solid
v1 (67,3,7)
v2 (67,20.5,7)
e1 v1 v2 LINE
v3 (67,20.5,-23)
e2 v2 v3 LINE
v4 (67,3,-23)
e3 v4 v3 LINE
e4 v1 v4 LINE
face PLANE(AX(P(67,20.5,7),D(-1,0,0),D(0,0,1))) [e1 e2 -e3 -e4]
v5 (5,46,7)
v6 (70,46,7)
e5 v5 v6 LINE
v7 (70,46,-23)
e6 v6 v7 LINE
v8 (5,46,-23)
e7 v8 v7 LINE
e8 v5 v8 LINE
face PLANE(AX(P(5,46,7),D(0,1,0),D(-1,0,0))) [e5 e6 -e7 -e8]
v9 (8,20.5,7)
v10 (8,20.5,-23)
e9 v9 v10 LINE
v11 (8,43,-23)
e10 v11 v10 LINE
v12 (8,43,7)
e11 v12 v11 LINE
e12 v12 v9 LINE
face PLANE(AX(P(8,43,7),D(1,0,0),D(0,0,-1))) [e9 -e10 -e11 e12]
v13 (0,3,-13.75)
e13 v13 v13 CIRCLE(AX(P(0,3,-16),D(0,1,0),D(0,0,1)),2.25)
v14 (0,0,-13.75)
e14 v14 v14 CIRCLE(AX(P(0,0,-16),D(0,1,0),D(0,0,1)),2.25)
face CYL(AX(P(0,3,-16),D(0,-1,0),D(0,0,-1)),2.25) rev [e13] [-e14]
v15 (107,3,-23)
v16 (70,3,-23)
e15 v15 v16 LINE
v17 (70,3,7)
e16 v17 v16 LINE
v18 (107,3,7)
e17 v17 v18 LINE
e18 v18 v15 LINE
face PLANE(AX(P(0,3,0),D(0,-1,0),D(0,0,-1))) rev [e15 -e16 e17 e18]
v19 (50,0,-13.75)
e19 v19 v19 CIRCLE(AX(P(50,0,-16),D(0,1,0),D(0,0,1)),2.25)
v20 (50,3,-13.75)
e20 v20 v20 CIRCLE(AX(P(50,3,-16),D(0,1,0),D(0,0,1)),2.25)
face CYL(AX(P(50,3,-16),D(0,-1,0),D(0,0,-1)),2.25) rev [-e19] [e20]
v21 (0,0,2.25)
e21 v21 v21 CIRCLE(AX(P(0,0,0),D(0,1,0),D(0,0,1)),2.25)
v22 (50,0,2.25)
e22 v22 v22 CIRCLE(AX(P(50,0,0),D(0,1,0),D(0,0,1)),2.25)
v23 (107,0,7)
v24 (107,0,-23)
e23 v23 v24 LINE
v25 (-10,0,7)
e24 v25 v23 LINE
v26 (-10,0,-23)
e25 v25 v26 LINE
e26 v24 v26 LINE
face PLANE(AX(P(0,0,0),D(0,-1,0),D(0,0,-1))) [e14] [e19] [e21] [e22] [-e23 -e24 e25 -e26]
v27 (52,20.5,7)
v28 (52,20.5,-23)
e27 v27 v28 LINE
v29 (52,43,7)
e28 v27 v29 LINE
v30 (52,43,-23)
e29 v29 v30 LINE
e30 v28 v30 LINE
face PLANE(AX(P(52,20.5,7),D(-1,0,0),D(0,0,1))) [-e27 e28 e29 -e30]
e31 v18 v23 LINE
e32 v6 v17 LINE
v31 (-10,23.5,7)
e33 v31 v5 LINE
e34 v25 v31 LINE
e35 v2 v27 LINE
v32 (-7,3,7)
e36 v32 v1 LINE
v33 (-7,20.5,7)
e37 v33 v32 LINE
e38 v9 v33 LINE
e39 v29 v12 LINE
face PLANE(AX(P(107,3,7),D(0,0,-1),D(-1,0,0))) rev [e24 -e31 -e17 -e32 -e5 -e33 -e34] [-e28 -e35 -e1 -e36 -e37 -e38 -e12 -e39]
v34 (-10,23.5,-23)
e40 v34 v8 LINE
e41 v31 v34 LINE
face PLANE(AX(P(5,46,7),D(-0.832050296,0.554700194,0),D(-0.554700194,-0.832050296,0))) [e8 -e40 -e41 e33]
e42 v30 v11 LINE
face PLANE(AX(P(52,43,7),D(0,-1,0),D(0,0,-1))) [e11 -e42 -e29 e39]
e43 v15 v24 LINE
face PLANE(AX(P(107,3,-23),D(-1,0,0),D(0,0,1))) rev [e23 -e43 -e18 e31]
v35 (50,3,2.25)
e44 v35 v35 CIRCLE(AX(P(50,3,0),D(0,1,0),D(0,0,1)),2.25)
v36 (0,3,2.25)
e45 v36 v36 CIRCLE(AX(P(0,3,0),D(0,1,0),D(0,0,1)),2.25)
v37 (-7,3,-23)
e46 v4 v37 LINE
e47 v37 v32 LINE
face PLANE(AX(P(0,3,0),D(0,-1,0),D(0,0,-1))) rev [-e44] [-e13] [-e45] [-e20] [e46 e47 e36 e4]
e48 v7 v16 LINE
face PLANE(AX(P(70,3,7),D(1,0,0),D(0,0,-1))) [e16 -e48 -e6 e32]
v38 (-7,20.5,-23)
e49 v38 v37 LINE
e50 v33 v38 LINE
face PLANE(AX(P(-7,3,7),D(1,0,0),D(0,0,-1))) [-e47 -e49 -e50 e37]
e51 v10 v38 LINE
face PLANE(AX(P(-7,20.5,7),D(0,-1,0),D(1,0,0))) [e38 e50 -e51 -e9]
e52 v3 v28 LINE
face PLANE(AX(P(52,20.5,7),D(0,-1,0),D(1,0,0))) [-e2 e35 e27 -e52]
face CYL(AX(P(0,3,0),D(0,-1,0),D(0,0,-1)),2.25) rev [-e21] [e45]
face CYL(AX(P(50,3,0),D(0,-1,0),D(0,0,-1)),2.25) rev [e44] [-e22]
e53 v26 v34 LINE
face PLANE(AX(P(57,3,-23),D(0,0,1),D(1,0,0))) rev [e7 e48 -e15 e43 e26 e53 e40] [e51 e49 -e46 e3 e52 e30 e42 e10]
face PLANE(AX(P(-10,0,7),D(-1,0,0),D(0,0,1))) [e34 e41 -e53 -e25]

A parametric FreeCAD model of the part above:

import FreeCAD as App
import Part
import Sketcher

V = App.Vector
Q = App.Units.Quantity


def add_polygon(sketch, points):
    """Adds a closed chain of lines whose ends are joined by coincident constraints."""
    first, n = sketch.GeometryCount, len(points)
    for a, b in zip(points, points[1:] + points[:1]):
        sketch.addGeometry(Part.LineSegment(App.Vector(*a, 0), App.Vector(*b, 0)), False)
    for i in range(n):
        sketch.addConstraint(Sketcher.Constraint("Coincident", first + i, 2, first + (i + 1) % n, 1))

doc = App.newDocument("Part")
params = doc.addObject("Spreadsheet::Sheet", "Params")
for row, (alias, value) in enumerate([
    ("sketch1_diameter", "4.5 mm"),
    ("sketch1_width", "114 mm"),
    ("sketch1_height", "30 mm"),
    ("pad1_length", "3 mm"),
    ("sketch2_width", "3 mm"),
    ("sketch2_width2", "15 mm"),
    ("sketch2_width3", "65 mm"),
    ("sketch2_height", "43 mm"),
    ("sketch2_height2", "20.5 mm"),
    ("pad2_length", "30 mm"),
    ("sketch3_width", "15 mm"),
    ("sketch3_height", "22.5 mm"),
    ("pad3_length", "30 mm"),
], start=1):
    params.set(f"A{row}", alias)
    params.set(f"B{row}", "=" + value)
    params.setAlias(f"B{row}", alias)

body = doc.addObject("PartDesign::Body", "Body")

# Sketch on XZ plane
sketch1 = body.newObject("Sketcher::SketchObject", "Sketch")
sketch1.AttachmentSupport = (doc.getObject("XZ_Plane"), [""])
sketch1.MapMode = "FlatFace"
add_polygon(sketch1, [(-7, -23), (-7, 7), (107, 7), (107, -23)])  # lines 0-3
sketch1.addGeometry(Part.Circle(V(0, 0, 0), V(0, 0, 1), 2.2), False)  # 4
sketch1.addGeometry(Part.Circle(V(50, 0, 0), V(0, 0, 1), 2.2), False)  # 5
sketch1.addGeometry(Part.Circle(V(0, -16, 0), V(0, 0, 1), 2.2), False)  # 6
sketch1.addGeometry(Part.Circle(V(50, -16, 0), V(0, 0, 1), 2.2), False)  # 7
sketch1.addConstraint([
    Sketcher.Constraint("Vertical", 0),
    Sketcher.Constraint("Horizontal", 1),
    Sketcher.Constraint("Vertical", 2),
    Sketcher.Constraint("Horizontal", 3),
    Sketcher.Constraint("Coincident", 4, 3, -1, 1),
    Sketcher.Constraint("Equal", 4, 5),
    Sketcher.Constraint("Equal", 5, 6),
    Sketcher.Constraint("Equal", 6, 7),
    Sketcher.Constraint("PointOnObject", 5, 3, -1),
    Sketcher.Constraint("PointOnObject", 6, 3, -2),
    Sketcher.Constraint("Horizontal", 6, 3, 7, 3),
    Sketcher.Constraint("Vertical", 5, 3, 7, 3),
    Sketcher.Constraint("Diameter", 4, Q("4.5 mm")),
    Sketcher.Constraint("DistanceX", 1, 1, 1, 2, Q("114 mm")),
    Sketcher.Constraint("DistanceY", 0, 1, 0, 2, Q("30 mm")),
    Sketcher.Constraint("DistanceX", -1, 1, 5, 3, Q("50 mm")),
    Sketcher.Constraint("DistanceY", 6, 3, -1, 1, Q("16 mm")),
    Sketcher.Constraint("DistanceX", 0, 2, -1, 1, Q("7 mm")),
    Sketcher.Constraint("DistanceY", -1, 1, 0, 2, Q("7 mm")),
])
sketch1.setExpression("Constraints[16]", "Params.sketch1_diameter")
sketch1.setExpression("Constraints[17]", "Params.sketch1_width")
sketch1.setExpression("Constraints[18]", "Params.sketch1_height")
pad1 = body.newObject("PartDesign::Pad", "Pad")
pad1.Profile = sketch1
pad1.setExpression("Length", "Params.pad1_length")
pad1.Reversed = True

# Sketch on XY plane
sketch2 = body.newObject("Sketcher::SketchObject", "Sketch001")
sketch2.AttachmentSupport = (doc.getObject("XY_Plane"), [""])
sketch2.MapMode = "FlatFace"
sketch2.AttachmentOffset = App.Placement(V(0, 0, -23), App.Rotation())
add_polygon(sketch2, [(-7, 20.5), (-7, 0), (-10, 0), (-10, 23.5), (5, 23.5), (5, 46), (70, 46), (70, 3), (67, 3), (67, 20.5), (52, 20.5), (52, 43), (8, 43), (8, 20.5)])  # lines 0-13
sketch2.addConstraint([
    Sketcher.Constraint("Vertical", 0),
    Sketcher.Constraint("Horizontal", 1),
    Sketcher.Constraint("Vertical", 2),
    Sketcher.Constraint("Horizontal", 3),
    Sketcher.Constraint("Vertical", 4),
    Sketcher.Constraint("Horizontal", 5),
    Sketcher.Constraint("Vertical", 6),
    Sketcher.Constraint("Horizontal", 7),
    Sketcher.Constraint("Vertical", 8),
    Sketcher.Constraint("Horizontal", 9),
    Sketcher.Constraint("Vertical", 10),
    Sketcher.Constraint("Horizontal", 11),
    Sketcher.Constraint("Vertical", 12),
    Sketcher.Constraint("Horizontal", 13),
    Sketcher.Constraint("PointOnObject", 0, 2, -1),
    Sketcher.Constraint("Horizontal", 9, 2, 12, 2),
    Sketcher.Constraint("Equal", 1, 7),
    Sketcher.Constraint("Equal", 3, 9),
    Sketcher.Constraint("Equal", 9, 13),
    Sketcher.Constraint("Equal", 4, 10),
    Sketcher.Constraint("DistanceX", 1, 2, 1, 1, Q("3 mm")),
    Sketcher.Constraint("DistanceX", 3, 1, 3, 2, Q("15 mm")),
    Sketcher.Constraint("DistanceX", 5, 1, 5, 2, Q("65 mm")),
    Sketcher.Constraint("DistanceY", 6, 2, 6, 1, Q("43 mm")),
    Sketcher.Constraint("DistanceY", 0, 2, 0, 1, Q("20.5 mm")),
    Sketcher.Constraint("DistanceY", 2, 1, 2, 2, Q("23.5 mm")),
    Sketcher.Constraint("DistanceY", 4, 1, 4, 2, Q("22.5 mm")),
    Sketcher.Constraint("DistanceX", 0, 2, -1, 1, Q("7 mm")),
])
sketch2.setExpression("Constraints[34]", "Params.sketch2_width")
sketch2.setExpression("Constraints[35]", "Params.sketch2_width2")
sketch2.setExpression("Constraints[36]", "Params.sketch2_width3")
sketch2.setExpression("Constraints[37]", "Params.sketch2_height")
sketch2.setExpression("Constraints[38]", "Params.sketch2_height2")
pad2 = body.newObject("PartDesign::Pad", "Pad001")
pad2.Profile = sketch2
pad2.setExpression("Length", "Params.pad2_length")

# Sketch on XY plane
sketch3 = body.newObject("Sketcher::SketchObject", "Sketch002")
sketch3.AttachmentSupport = (doc.getObject("XY_Plane"), [""])
sketch3.MapMode = "FlatFace"
sketch3.AttachmentOffset = App.Placement(V(0, 0, -23), App.Rotation())
add_polygon(sketch3, [(-10, 24), (5, 46), (5, 24)])  # lines 0-2
sketch3.addConstraint([
    Sketcher.Constraint("Vertical", 1),
    Sketcher.Constraint("Horizontal", 2),
    Sketcher.Constraint("DistanceX", 2, 2, 2, 1, Q("15 mm")),
    Sketcher.Constraint("DistanceY", 1, 2, 1, 1, Q("22.5 mm")),
    Sketcher.Constraint("DistanceX", -1, 1, 0, 2, Q("5 mm")),
    Sketcher.Constraint("DistanceY", -1, 1, 0, 2, Q("46 mm")),
])
sketch3.setExpression("Constraints[5]", "Params.sketch3_width")
sketch3.setExpression("Constraints[6]", "Params.sketch3_height")
pad3 = body.newObject("PartDesign::Pad", "Pad002")
pad3.Profile = sketch3
pad3.setExpression("Length", "Params.pad3_length")

doc.recompute()
